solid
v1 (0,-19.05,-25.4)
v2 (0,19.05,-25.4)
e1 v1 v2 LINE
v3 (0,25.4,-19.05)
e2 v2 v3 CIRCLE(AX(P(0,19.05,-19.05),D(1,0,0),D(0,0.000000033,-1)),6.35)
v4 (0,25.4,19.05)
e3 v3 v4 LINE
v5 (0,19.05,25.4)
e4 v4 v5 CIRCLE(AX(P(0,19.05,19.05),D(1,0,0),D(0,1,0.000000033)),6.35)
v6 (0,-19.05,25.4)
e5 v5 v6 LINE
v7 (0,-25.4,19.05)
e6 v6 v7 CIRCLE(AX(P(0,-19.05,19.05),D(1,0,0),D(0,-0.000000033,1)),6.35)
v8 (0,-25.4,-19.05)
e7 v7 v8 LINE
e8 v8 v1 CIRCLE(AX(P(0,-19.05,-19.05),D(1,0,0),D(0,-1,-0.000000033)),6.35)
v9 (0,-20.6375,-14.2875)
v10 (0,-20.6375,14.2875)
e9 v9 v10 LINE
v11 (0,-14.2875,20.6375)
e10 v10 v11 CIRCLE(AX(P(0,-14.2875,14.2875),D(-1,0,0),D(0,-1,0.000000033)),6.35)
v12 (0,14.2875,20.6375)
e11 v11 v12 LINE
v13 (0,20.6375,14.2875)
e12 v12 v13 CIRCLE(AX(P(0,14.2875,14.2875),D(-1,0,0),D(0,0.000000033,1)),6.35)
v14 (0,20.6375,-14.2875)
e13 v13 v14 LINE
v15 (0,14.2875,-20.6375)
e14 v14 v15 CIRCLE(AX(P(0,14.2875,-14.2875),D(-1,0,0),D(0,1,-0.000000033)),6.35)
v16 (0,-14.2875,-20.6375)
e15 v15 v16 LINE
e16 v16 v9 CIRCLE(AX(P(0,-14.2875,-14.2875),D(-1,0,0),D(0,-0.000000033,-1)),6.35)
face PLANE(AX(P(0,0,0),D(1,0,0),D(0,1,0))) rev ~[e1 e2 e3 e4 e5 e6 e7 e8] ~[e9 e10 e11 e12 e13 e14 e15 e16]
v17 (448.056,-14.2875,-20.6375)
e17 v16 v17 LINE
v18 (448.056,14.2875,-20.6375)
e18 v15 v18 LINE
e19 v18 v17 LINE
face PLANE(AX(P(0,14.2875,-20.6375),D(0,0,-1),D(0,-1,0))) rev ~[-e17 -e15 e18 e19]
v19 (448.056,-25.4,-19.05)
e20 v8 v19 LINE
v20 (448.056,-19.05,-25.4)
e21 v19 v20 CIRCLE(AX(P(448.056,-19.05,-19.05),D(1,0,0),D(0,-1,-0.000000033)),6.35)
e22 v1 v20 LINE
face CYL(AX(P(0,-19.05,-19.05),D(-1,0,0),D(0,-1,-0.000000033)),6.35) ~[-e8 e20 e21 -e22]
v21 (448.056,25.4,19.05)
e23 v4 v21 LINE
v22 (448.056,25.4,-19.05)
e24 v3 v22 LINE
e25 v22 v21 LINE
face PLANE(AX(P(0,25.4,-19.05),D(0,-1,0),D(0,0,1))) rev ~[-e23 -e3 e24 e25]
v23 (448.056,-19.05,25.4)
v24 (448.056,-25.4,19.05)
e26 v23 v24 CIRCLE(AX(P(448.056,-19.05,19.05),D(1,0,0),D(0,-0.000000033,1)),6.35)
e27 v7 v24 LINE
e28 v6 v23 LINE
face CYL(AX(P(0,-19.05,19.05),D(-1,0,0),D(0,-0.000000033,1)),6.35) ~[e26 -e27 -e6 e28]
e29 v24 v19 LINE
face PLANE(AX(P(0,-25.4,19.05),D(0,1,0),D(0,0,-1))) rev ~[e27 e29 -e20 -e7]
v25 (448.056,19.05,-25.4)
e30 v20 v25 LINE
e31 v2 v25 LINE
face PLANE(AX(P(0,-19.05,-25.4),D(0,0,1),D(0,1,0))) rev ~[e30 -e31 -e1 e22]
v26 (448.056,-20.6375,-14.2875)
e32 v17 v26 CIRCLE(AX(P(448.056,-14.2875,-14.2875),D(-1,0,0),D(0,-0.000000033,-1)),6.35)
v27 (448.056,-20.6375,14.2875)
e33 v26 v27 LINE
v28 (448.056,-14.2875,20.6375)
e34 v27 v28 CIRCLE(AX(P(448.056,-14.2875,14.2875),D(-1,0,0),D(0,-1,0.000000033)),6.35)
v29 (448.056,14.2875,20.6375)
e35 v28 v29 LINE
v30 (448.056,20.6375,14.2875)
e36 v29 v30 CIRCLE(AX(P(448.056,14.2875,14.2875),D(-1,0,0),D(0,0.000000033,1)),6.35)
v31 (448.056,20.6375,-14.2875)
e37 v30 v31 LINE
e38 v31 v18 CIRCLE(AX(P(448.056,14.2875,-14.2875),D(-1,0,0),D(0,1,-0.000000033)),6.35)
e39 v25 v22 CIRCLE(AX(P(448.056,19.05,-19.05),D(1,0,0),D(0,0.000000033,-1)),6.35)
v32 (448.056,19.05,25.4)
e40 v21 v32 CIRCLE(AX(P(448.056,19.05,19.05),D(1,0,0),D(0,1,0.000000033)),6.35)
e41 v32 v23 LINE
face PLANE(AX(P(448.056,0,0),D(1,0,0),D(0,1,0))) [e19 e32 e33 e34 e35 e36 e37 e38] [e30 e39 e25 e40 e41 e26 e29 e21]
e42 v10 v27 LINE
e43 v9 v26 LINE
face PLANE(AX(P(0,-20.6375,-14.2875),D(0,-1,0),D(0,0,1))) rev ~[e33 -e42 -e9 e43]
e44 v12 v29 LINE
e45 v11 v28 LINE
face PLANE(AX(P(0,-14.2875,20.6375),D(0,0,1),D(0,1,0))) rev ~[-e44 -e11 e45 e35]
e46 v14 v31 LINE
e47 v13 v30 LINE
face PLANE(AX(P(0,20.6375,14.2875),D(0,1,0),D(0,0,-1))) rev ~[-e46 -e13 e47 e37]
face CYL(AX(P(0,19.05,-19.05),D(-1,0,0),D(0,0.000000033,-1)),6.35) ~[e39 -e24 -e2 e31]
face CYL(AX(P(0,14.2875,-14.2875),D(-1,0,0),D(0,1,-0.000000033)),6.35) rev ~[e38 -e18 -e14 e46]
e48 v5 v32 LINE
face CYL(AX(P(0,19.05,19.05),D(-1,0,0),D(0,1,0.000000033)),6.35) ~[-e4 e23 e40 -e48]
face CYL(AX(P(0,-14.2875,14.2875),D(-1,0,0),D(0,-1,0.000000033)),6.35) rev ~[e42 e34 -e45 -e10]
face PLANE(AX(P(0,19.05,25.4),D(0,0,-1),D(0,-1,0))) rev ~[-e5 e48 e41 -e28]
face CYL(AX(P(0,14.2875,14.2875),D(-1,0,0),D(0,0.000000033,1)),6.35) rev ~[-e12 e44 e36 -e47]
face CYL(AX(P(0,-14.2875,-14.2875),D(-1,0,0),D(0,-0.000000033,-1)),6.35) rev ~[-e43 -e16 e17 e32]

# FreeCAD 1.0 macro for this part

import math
import FreeCAD as App
import Part
import Sketcher
from FreeCAD import Vector
Q = App.Units.Quantity

doc = App.newDocument("Part")
body = doc.addObject("PartDesign::Body", "Body")

# Sketch on YZ plane
sketch1 = body.newObject("Sketcher::SketchObject", "Sketch")
sketch1.AttachmentSupport = (doc.getObject("YZ_Plane"), [""])
sketch1.MapMode = "FlatFace"
sketch1.addGeometry(Part.ArcOfCircle(Part.Circle(Vector(19, 19, 0), Vector(0, 0, 1), 6), math.radians(0), math.radians(90)), False)
sketch1.addGeometry(Part.LineSegment(Vector(19, 25, 0), Vector(-19, 25, 0)), False)
sketch1.addGeometry(Part.ArcOfCircle(Part.Circle(Vector(-19, 19, 0), Vector(0, 0, 1), 6), math.radians(90), math.radians(180)), False)
sketch1.addGeometry(Part.LineSegment(Vector(-25, 19, 0), Vector(-25, -19, 0)), False)
sketch1.addGeometry(Part.ArcOfCircle(Part.Circle(Vector(-19, -19, 0), Vector(0, 0, 1), 6), math.radians(-180), math.radians(-90)), False)
sketch1.addGeometry(Part.LineSegment(Vector(-19, -25, 0), Vector(19, -25, 0)), False)
sketch1.addGeometry(Part.ArcOfCircle(Part.Circle(Vector(19, -19, 0), Vector(0, 0, 1), 6), math.radians(-90), math.radians(0)), False)
sketch1.addGeometry(Part.LineSegment(Vector(25, -19, 0), Vector(25, 19, 0)), False)
sketch1.addGeometry(Part.ArcOfCircle(Part.Circle(Vector(-14, 14, 0), Vector(0, 0, 1), 6), math.radians(90), math.radians(180)), False)
sketch1.addGeometry(Part.LineSegment(Vector(-14, 21, 0), Vector(14, 21, 0)), False)
sketch1.addGeometry(Part.ArcOfCircle(Part.Circle(Vector(14, 14, 0), Vector(0, 0, 1), 6), math.radians(0), math.radians(90)), False)
sketch1.addGeometry(Part.LineSegment(Vector(21, 14, 0), Vector(21, -14, 0)), False)
sketch1.addGeometry(Part.ArcOfCircle(Part.Circle(Vector(14, -14, 0), Vector(0, 0, 1), 6), math.radians(-90), math.radians(0)), False)
sketch1.addGeometry(Part.LineSegment(Vector(14, -21, 0), Vector(-14, -21, 0)), False)
sketch1.addGeometry(Part.ArcOfCircle(Part.Circle(Vector(-14, -14, 0), Vector(0, 0, 1), 6), math.radians(-180), math.radians(-90)), False)
sketch1.addGeometry(Part.LineSegment(Vector(-21, -14, 0), Vector(-21, 14, 0)), False)
sketch1.addConstraint(Sketcher.Constraint("Tangent", 0, 2, 1, 1))
sketch1.addConstraint(Sketcher.Constraint("Tangent", 1, 2, 2, 1))
sketch1.addConstraint(Sketcher.Constraint("Tangent", 2, 2, 3, 1))
sketch1.addConstraint(Sketcher.Constraint("Tangent", 3, 2, 4, 1))
sketch1.addConstraint(Sketcher.Constraint("Tangent", 4, 2, 5, 1))
sketch1.addConstraint(Sketcher.Constraint("Tangent", 5, 2, 6, 1))
sketch1.addConstraint(Sketcher.Constraint("Tangent", 6, 2, 7, 1))
sketch1.addConstraint(Sketcher.Constraint("Tangent", 7, 2, 0, 1))
sketch1.addConstraint(Sketcher.Constraint("Tangent", 8, 1, 9, 1))
sketch1.addConstraint(Sketcher.Constraint("Tangent", 9, 2, 10, 2))
sketch1.addConstraint(Sketcher.Constraint("Tangent", 10, 1, 11, 1))
sketch1.addConstraint(Sketcher.Constraint("Tangent", 11, 2, 12, 2))
sketch1.addConstraint(Sketcher.Constraint("Tangent", 12, 1, 13, 1))
sketch1.addConstraint(Sketcher.Constraint("Tangent", 13, 2, 14, 2))
sketch1.addConstraint(Sketcher.Constraint("Tangent", 14, 1, 15, 1))
sketch1.addConstraint(Sketcher.Constraint("Tangent", 15, 2, 8, 2))
sketch1.addConstraint(Sketcher.Constraint("Horizontal", 1))
sketch1.addConstraint(Sketcher.Constraint("Vertical", 3))
sketch1.addConstraint(Sketcher.Constraint("Horizontal", 5))
sketch1.addConstraint(Sketcher.Constraint("Vertical", 7))
sketch1.addConstraint(Sketcher.Constraint("Horizontal", 9))
sketch1.addConstraint(Sketcher.Constraint("Vertical", 11))
sketch1.addConstraint(Sketcher.Constraint("Horizontal", 13))
sketch1.addConstraint(Sketcher.Constraint("Vertical", 15))
sketch1.addConstraint(Sketcher.Constraint("Equal", 0, 2))
sketch1.addConstraint(Sketcher.Constraint("Equal", 2, 4))
sketch1.addConstraint(Sketcher.Constraint("Equal", 4, 6))
sketch1.addConstraint(Sketcher.Constraint("Equal", 6, 8))
sketch1.addConstraint(Sketcher.Constraint("Equal", 8, 10))
sketch1.addConstraint(Sketcher.Constraint("Equal", 10, 12))
sketch1.addConstraint(Sketcher.Constraint("Equal", 12, 14))
sketch1.addConstraint(Sketcher.Constraint("Symmetric", 0, 3, 4, 3, -1, 1))
sketch1.addConstraint(Sketcher.Constraint("Symmetric", 8, 3, 12, 3, -1, 1))
sketch1.addConstraint(Sketcher.Constraint("Equal", 5, 3))
sketch1.addConstraint(Sketcher.Constraint("Equal", 13, 11))
sketch1.addConstraint(Sketcher.Constraint("Radius", 0, Q("0.25 in")))
sketch1.addConstraint(Sketcher.Constraint("DistanceX", 1, 2, 1, 1, Q("1.5 in")))
sketch1.addConstraint(Sketcher.Constraint("DistanceX", 9, 1, 9, 2, Q("1.125 in")))
pad1 = body.newObject("PartDesign::Pad", "Pad")
pad1.Profile = sketch1
pad1.Length = Q("17.64 in")

doc.recompute()
